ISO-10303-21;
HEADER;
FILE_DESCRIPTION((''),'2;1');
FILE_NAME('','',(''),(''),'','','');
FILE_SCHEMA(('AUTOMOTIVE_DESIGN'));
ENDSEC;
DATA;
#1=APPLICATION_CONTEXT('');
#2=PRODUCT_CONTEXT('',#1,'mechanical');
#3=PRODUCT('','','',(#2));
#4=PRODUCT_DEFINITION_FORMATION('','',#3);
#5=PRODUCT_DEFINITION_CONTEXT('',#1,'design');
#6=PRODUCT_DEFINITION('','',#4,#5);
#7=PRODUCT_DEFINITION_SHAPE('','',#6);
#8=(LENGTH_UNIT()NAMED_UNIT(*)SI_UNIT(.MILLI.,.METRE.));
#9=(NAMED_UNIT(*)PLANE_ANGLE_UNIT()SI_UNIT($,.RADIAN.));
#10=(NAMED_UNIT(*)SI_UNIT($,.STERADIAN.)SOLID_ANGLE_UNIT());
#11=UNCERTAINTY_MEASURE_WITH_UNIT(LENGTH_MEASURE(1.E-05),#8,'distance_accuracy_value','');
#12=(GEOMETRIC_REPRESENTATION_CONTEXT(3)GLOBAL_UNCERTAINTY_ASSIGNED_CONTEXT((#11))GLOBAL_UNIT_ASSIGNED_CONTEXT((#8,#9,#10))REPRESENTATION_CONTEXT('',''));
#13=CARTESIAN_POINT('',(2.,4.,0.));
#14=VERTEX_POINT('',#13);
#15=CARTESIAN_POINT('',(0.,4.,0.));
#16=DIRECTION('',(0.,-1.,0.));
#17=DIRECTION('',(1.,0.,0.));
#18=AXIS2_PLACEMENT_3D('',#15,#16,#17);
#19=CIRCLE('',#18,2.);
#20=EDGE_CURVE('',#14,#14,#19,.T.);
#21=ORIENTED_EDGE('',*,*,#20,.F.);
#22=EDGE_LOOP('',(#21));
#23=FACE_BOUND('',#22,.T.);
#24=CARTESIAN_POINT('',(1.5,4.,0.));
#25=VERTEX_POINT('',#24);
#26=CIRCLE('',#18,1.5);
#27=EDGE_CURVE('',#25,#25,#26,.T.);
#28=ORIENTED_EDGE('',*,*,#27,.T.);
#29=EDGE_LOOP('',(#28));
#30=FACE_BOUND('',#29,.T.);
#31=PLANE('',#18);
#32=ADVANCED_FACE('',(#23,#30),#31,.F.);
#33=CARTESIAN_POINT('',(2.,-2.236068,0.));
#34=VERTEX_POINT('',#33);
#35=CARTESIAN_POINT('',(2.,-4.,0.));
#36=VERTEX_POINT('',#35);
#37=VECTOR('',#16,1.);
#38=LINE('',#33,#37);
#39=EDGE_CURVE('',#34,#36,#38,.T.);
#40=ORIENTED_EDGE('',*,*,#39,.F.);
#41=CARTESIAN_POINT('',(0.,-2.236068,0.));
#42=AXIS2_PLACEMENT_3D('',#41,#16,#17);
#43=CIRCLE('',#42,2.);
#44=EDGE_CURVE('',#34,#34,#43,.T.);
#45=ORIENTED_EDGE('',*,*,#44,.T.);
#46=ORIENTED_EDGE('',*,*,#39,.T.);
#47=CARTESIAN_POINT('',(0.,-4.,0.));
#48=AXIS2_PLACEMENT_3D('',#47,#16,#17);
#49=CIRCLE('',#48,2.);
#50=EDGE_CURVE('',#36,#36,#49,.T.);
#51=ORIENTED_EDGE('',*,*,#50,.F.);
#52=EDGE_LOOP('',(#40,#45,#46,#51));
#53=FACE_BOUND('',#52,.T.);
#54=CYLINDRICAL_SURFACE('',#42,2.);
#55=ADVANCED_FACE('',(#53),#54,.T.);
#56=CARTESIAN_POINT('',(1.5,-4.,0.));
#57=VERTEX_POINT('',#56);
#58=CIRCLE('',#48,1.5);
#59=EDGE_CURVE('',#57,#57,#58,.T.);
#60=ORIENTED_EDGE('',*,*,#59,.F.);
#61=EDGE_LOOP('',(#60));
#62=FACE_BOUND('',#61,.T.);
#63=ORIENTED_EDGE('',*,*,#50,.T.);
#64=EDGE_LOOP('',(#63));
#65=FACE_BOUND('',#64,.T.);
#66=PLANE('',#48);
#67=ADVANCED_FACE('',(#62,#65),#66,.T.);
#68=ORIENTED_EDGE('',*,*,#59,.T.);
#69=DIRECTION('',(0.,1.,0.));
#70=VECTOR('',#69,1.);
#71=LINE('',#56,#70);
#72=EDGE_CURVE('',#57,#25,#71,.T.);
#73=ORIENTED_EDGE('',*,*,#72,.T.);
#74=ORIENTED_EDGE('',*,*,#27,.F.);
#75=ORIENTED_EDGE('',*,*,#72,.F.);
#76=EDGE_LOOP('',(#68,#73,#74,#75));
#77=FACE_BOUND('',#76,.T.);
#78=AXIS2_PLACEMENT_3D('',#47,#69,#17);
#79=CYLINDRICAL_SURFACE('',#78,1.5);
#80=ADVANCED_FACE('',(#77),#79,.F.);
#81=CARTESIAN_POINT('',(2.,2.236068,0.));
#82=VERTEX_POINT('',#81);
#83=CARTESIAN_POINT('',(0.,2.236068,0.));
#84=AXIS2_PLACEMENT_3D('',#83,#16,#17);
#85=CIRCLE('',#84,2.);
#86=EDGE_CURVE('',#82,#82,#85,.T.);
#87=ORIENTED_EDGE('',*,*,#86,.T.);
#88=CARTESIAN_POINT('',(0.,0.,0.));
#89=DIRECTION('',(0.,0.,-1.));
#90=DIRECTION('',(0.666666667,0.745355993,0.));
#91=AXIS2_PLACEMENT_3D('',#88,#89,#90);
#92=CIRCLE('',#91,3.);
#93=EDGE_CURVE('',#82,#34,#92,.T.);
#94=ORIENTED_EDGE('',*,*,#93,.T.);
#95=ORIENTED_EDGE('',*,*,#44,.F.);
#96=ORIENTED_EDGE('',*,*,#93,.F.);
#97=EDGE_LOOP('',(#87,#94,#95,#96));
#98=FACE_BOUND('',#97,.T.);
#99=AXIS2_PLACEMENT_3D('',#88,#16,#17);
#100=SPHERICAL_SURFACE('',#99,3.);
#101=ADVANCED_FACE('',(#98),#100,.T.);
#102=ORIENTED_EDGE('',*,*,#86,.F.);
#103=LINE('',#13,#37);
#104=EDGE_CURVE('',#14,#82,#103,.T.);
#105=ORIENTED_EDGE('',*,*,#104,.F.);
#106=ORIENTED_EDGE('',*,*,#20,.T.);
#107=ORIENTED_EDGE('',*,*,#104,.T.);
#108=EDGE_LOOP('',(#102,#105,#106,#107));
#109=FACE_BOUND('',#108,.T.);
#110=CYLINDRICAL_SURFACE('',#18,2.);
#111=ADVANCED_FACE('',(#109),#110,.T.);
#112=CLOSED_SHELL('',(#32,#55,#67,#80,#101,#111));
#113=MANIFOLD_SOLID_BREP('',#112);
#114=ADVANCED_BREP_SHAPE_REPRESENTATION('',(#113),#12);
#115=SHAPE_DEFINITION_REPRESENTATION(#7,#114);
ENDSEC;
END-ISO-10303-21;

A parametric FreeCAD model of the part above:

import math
import FreeCAD as App
import Part
import Sketcher

doc = App.newDocument("Part")
body = doc.addObject("PartDesign::Body", "Body")

# Sketch on XY plane
sketch1 = body.newObject("Sketcher::SketchObject", "Sketch")
sketch1.AttachmentSupport = (doc.getObject("XY_Plane"), [""])
sketch1.MapMode = "FlatFace"
sketch1.addGeometry([
    Part.LineSegment(App.Vector(1.5, 4, 0), App.Vector(1.5, -4, 0)),  # 0
    Part.LineSegment(App.Vector(1.5, -4, 0), App.Vector(2, -4, 0)),  # 1
    Part.LineSegment(App.Vector(2, -4, 0), App.Vector(2, -2.236068, 0)),  # 2
    Part.ArcOfCircle(Part.Circle(App.Vector(0, 0, 0), App.Vector(0, 0, 1), 3), math.radians(-48.189685), math.radians(48.189685)),  # 3
    Part.LineSegment(App.Vector(2, 2.236068, 0), App.Vector(2, 4, 0)),  # 4
    Part.LineSegment(App.Vector(2, 4, 0), App.Vector(1.5, 4, 0)),  # 5
], False)
sketch1.addConstraint([
    Sketcher.Constraint("Coincident", 0, 2, 1, 1),
    Sketcher.Constraint("Coincident", 1, 2, 2, 1),
    Sketcher.Constraint("Coincident", 2, 2, 3, 1),
    Sketcher.Constraint("Coincident", 3, 2, 4, 1),
    Sketcher.Constraint("Coincident", 4, 2, 5, 1),
    Sketcher.Constraint("Coincident", 5, 2, 0, 1),
    Sketcher.Constraint("Vertical", 0),
    Sketcher.Constraint("Horizontal", 1),
    Sketcher.Constraint("Vertical", 2),
    Sketcher.Constraint("Vertical", 4),
    Sketcher.Constraint("Horizontal", 5),
    Sketcher.Constraint("Coincident", 3, 3, -1, 1),
    Sketcher.Constraint("Symmetric", 1, 2, 4, 2, -1),
    Sketcher.Constraint("Radius", 3, 3.0),
    Sketcher.Constraint("DistanceY", 0, 2, 0, 1, 8.0),
    Sketcher.Constraint("DistanceX", 1, 1, 1, 2, 0.5),
    Sketcher.Constraint("DistanceX", -1, 1, 1, 2, 2.0),
])
revolution = body.newObject("PartDesign::Revolution", "Revolution")
revolution.Profile = sketch1
revolution.ReferenceAxis = (sketch1, ["V_Axis"])
revolution.Angle = 360

doc.recompute()
